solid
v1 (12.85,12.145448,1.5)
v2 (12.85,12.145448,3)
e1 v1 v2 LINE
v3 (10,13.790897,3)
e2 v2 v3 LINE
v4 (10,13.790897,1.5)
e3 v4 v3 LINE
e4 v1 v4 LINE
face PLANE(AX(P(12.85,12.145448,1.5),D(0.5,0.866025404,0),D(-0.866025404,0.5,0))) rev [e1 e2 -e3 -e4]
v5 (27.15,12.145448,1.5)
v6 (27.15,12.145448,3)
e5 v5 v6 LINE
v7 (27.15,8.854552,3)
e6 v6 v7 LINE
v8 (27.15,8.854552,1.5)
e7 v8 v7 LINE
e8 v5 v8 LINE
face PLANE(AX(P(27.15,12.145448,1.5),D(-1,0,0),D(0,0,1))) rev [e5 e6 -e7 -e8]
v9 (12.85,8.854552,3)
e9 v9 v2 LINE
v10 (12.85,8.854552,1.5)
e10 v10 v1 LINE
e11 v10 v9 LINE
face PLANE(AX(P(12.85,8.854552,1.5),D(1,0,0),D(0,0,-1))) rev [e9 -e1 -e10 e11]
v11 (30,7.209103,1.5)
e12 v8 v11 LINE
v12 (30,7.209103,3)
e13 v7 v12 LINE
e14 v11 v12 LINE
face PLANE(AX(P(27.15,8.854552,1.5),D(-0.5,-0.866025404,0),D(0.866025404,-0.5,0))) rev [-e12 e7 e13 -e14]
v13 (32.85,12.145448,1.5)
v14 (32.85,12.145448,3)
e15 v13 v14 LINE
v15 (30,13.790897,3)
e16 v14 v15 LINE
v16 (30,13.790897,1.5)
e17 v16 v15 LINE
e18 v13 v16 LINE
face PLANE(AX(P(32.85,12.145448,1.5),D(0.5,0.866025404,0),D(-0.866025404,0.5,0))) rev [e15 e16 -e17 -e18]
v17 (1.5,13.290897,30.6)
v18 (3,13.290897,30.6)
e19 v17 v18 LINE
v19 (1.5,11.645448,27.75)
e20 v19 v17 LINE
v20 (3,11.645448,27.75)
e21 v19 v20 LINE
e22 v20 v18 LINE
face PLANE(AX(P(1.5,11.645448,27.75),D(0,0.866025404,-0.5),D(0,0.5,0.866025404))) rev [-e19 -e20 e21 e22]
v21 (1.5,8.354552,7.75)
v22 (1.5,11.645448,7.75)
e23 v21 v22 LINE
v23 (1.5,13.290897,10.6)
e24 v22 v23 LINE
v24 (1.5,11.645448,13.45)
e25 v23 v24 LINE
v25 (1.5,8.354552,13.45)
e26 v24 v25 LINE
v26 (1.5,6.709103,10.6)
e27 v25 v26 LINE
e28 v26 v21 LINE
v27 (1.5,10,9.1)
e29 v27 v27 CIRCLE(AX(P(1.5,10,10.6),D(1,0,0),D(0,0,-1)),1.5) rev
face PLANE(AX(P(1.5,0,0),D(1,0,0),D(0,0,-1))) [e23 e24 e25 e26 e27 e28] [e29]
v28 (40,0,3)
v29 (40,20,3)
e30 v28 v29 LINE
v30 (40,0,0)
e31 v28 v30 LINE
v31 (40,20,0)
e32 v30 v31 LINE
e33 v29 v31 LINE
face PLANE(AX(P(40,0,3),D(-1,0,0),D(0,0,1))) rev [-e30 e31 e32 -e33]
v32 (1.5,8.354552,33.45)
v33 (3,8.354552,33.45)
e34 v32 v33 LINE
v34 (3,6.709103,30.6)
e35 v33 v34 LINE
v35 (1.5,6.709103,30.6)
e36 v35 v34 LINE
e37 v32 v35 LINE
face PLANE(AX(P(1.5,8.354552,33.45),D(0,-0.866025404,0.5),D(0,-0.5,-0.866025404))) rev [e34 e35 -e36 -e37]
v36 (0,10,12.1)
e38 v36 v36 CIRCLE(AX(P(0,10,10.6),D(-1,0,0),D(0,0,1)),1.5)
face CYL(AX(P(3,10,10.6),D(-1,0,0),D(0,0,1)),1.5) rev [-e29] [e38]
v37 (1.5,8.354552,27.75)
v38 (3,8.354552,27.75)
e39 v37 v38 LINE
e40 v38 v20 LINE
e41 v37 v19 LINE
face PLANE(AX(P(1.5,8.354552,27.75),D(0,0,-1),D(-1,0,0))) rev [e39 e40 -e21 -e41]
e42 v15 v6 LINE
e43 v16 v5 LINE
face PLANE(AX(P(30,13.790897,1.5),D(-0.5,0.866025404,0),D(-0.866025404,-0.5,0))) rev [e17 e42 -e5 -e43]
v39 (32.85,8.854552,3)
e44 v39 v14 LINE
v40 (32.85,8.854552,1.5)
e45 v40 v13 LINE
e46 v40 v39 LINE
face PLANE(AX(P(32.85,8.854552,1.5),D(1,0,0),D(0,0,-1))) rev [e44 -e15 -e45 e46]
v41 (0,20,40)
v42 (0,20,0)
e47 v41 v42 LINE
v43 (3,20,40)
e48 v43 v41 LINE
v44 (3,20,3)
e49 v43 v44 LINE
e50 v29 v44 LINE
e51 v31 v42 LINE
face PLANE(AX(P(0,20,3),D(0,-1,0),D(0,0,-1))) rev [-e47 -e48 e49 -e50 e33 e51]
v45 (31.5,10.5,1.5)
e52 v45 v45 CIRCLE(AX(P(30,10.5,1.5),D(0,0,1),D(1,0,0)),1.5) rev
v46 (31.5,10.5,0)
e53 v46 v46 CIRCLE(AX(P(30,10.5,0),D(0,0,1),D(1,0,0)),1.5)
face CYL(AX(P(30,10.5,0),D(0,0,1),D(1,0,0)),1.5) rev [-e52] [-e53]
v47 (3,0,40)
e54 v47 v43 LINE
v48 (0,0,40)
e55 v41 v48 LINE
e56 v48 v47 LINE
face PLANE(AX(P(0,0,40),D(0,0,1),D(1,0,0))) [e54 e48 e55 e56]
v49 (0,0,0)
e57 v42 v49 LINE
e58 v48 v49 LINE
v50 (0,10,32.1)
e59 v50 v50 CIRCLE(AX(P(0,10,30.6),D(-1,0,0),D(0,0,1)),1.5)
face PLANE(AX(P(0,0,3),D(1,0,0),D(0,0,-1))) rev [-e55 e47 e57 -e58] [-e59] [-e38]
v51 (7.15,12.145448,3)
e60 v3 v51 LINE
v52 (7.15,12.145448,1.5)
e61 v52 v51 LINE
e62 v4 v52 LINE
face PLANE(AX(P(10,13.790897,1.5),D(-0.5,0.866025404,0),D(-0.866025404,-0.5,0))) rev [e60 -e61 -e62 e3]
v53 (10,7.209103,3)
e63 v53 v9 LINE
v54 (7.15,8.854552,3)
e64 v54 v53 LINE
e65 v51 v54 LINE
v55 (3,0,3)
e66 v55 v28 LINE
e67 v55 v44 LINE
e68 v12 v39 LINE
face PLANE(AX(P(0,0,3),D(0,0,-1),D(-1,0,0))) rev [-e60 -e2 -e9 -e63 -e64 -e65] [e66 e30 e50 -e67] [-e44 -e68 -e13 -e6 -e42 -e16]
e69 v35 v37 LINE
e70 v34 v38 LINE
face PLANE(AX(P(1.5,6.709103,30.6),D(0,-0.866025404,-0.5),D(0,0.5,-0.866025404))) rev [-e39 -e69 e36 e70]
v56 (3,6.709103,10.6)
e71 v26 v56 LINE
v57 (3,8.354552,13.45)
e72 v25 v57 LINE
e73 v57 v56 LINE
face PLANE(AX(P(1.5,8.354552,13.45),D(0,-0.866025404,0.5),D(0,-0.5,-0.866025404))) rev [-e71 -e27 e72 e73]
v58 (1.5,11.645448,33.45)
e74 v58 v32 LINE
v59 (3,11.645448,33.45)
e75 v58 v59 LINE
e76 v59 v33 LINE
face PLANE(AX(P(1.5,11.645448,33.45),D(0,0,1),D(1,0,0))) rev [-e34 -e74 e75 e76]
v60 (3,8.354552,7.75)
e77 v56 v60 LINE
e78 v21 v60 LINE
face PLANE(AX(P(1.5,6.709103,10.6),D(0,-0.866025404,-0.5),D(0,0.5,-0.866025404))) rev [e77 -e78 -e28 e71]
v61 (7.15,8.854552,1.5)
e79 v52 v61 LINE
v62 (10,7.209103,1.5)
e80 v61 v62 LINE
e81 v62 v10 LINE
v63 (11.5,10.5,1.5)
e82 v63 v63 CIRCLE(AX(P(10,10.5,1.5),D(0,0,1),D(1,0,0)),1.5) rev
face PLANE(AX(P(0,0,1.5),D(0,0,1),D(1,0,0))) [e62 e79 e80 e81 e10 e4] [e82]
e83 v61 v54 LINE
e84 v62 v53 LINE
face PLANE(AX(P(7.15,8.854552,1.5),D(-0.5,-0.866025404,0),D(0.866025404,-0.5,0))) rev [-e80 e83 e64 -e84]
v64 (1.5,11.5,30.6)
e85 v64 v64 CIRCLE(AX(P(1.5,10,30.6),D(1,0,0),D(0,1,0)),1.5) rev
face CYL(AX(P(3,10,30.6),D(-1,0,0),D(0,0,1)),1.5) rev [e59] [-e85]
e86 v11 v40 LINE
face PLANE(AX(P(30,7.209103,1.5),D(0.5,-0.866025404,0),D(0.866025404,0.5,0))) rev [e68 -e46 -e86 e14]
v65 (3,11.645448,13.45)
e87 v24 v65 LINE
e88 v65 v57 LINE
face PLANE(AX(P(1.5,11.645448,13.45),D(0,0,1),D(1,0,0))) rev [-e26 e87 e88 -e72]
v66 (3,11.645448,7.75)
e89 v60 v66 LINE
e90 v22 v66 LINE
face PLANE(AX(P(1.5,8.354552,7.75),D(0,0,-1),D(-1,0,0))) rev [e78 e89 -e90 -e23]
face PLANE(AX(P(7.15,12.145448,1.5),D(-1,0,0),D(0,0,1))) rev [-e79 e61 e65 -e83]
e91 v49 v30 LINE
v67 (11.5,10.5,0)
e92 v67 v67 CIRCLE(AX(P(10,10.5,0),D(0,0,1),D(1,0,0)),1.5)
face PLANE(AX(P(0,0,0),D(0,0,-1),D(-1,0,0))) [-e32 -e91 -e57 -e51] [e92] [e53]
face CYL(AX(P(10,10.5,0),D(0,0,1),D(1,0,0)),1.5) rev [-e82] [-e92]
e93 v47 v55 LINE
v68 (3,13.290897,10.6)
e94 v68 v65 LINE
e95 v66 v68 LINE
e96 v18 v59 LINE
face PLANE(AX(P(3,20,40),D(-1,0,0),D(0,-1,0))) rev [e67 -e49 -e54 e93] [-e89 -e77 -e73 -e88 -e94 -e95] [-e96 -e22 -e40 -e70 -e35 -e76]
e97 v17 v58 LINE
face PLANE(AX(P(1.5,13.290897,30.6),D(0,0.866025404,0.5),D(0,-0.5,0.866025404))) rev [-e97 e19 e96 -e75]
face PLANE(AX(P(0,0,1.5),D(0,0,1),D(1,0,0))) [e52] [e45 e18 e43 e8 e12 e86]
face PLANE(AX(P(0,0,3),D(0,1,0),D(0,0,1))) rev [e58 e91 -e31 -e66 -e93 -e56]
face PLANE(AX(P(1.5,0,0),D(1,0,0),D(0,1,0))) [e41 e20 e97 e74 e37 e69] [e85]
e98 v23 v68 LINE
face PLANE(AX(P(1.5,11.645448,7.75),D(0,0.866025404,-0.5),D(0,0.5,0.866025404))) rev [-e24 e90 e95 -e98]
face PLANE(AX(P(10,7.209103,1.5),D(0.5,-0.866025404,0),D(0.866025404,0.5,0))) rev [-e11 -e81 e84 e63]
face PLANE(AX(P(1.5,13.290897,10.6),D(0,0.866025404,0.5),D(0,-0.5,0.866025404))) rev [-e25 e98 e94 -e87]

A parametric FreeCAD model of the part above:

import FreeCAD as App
import Part
import Sketcher
from FreeCAD import Vector
Q = App.Units.Quantity


def add_polygon(sketch, points):
    """Adds a closed chain of lines whose ends are joined by coincident constraints."""
    first, n = sketch.GeometryCount, len(points)
    for a, b in zip(points, points[1:] + points[:1]):
        sketch.addGeometry(Part.LineSegment(App.Vector(*a, 0), App.Vector(*b, 0)), False)
    for i in range(n):
        sketch.addConstraint(Sketcher.Constraint("Coincident", first + i, 2, first + (i + 1) % n, 1))

doc = App.newDocument("Part")
body = doc.addObject("PartDesign::Body", "Body")

# Sketch on XY plane
sketch1 = body.newObject("Sketcher::SketchObject", "Sketch")
sketch1.AttachmentSupport = (doc.getObject("XY_Plane"), [""])
sketch1.MapMode = "FlatFace"
add_polygon(sketch1, [(0, 20), (0, 0), (40, 0), (40, 20)])  # lines 0-3
sketch1.addConstraint([
    Sketcher.Constraint("Vertical", 0),
    Sketcher.Constraint("Horizontal", 1),
    Sketcher.Constraint("Vertical", 2),
    Sketcher.Constraint("Horizontal", 3),
    Sketcher.Constraint("Coincident", 0, 2, -1, 1),
    Sketcher.Constraint("DistanceX", 1, 1, 1, 2, 40.0),
    Sketcher.Constraint("DistanceY", 0, 2, 0, 1, 20.0),
])
pad1 = body.newObject("PartDesign::Pad", "Pad")
pad1.Profile = sketch1
pad1.Length = 3

# Sketch on XY plane
sketch2 = body.newObject("Sketcher::SketchObject", "Sketch001")
sketch2.AttachmentSupport = (doc.getObject("XY_Plane"), [""])
sketch2.MapMode = "FlatFace"
sketch2.AttachmentOffset = App.Placement(Vector(0, 0, 3), App.Rotation())
sketch2.addGeometry([
    Part.Circle(Vector(10, 10.5, 0), Vector(0, 0, 1), 1.5),
    Part.Circle(Vector(30, 10.5, 0), Vector(0, 0, 1), 1.5),
], False)
sketch2.addConstraint([
    Sketcher.Constraint("Equal", 0, 1),
    Sketcher.Constraint("Horizontal", 0, 3, 1, 3),
    Sketcher.Constraint("Diameter", 0, 3.0),
    Sketcher.Constraint("DistanceX", -1, 1, 0, 3, 10.0),
    Sketcher.Constraint("DistanceX", -1, 1, 1, 3, 30.0),
    Sketcher.Constraint("DistanceY", -1, 1, 0, 3, 10.5),
])
pocket1 = body.newObject("PartDesign::Pocket", "Pocket")
pocket1.Profile = sketch2
pocket1.Length = 3

# Sketch on XY plane
sketch3 = body.newObject("Sketcher::SketchObject", "Sketch002")
sketch3.AttachmentSupport = (doc.getObject("XY_Plane"), [""])
sketch3.MapMode = "FlatFace"
sketch3.AttachmentOffset = App.Placement(Vector(0, 0, 3), App.Rotation())
add_polygon(sketch3, [(0, 20), (0, 0), (3, 0), (3, 20)])  # lines 0-3
sketch3.addConstraint([
    Sketcher.Constraint("Vertical", 0),
    Sketcher.Constraint("Horizontal", 1),
    Sketcher.Constraint("Vertical", 2),
    Sketcher.Constraint("Horizontal", 3),
    Sketcher.Constraint("Coincident", 0, 2, -1, 1),
    Sketcher.Constraint("DistanceX", 1, 1, 1, 2, 3.0),
    Sketcher.Constraint("DistanceY", 0, 2, 0, 1, 20.0),
])
pad2 = body.newObject("PartDesign::Pad", "Pad001")
pad2.Profile = sketch3
pad2.Length = 37

# Sketch on YZ plane
sketch4 = body.newObject("Sketcher::SketchObject", "Sketch003")
sketch4.AttachmentSupport = (doc.getObject("YZ_Plane"), [""])
sketch4.MapMode = "FlatFace"
sketch4.addGeometry([
    Part.Circle(Vector(10, 10.6, 0), Vector(0, 0, 1), 1.5),
    Part.Circle(Vector(10, 30.6, 0), Vector(0, 0, 1), 1.5),
], False)
sketch4.addConstraint([
    Sketcher.Constraint("Equal", 0, 1),
    Sketcher.Constraint("Vertical", 0, 3, 1, 3),
    Sketcher.Constraint("Diameter", 0, 3.0),
    Sketcher.Constraint("DistanceX", -1, 1, 0, 3, 10.0),
    Sketcher.Constraint("DistanceY", 0, 3, 1, 3, 20.0),
    Sketcher.Constraint("DistanceY", -1, 1, 0, 3, 10.6),
])
pocket2 = body.newObject("PartDesign::Pocket", "Pocket001")
pocket2.Profile = sketch4
pocket2.Length = 3
pocket2.Reversed = True

# Sketch on YZ plane
sketch5 = body.newObject("Sketcher::SketchObject", "Sketch004")
sketch5.AttachmentSupport = (doc.getObject("YZ_Plane"), [""])
sketch5.MapMode = "FlatFace"
sketch5.AttachmentOffset = App.Placement(Vector(0, 0, 3), App.Rotation())
add_polygon(sketch5, [(8.4, 13.4), (6.7, 10.6), (8.4, 7.8), (11.6, 7.8), (13.3, 10.6), (11.6, 13.4)])  # lines 0-5
add_polygon(sketch5, [(6.7, 30.6), (8.4, 27.8), (11.6, 27.8), (13.3, 30.6), (11.6, 33.5), (8.4, 33.5)])  # lines 6-11
sketch5.addConstraint([
    Sketcher.Constraint("Horizontal", 2),
    Sketcher.Constraint("Horizontal", 5),
    Sketcher.Constraint("Horizontal", 7),
    Sketcher.Constraint("Horizontal", 10),
    Sketcher.Constraint("Parallel", 0, 3),
    Sketcher.Constraint("Parallel", 1, 4),
    Sketcher.Constraint("Parallel", 4, 6),
    Sketcher.Constraint("Parallel", 3, 8),
    Sketcher.Constraint("Parallel", 6, 9),
    Sketcher.Constraint("Parallel", 8, 11),
    Sketcher.Constraint("Horizontal", 0, 2, 3, 2),
    Sketcher.Constraint("Horizontal", 8, 2, 11, 2),
    Sketcher.Constraint("Vertical", 2, 2, 4, 2),
    Sketcher.Constraint("Vertical", 1, 2, 5, 2),
    Sketcher.Constraint("Vertical", 5, 2, 6, 2),
    Sketcher.Constraint("Vertical", 4, 2, 7, 2),
    Sketcher.Constraint("Vertical", 3, 2, 8, 2),
    Sketcher.Constraint("Vertical", 7, 2, 9, 2),
    Sketcher.Constraint("Angle", 0, Q("-120 deg")),
    Sketcher.Constraint("DistanceY", 1, 2, 6, 2, 20.0),
    Sketcher.Constraint("DistanceY", -1, 1, 0, 2, 10.6),
    Sketcher.Constraint("DistanceY", 2, 2, 4, 2, 5.7),
    Sketcher.Constraint("DistanceX", 2, 1, 2, 2, 3.290897),
    Sketcher.Constraint("DistanceX", -1, 1, 1, 2, 8.354552),
])
pocket3 = body.newObject("PartDesign::Pocket", "Pocket002")
pocket3.Profile = sketch5
pocket3.Length = 1.5

# Sketch on XY plane
sketch6 = body.newObject("Sketcher::SketchObject", "Sketch005")
sketch6.AttachmentSupport = (doc.getObject("XY_Plane"), [""])
sketch6.MapMode = "FlatFace"
sketch6.AttachmentOffset = App.Placement(Vector(0, 0, 3), App.Rotation())
add_polygon(sketch6, [(27.1, 8.9), (30, 7.2), (32.9, 8.9), (32.9, 12.1), (30, 13.8), (27.1, 12.1)])  # lines 0-5
add_polygon(sketch6, [(10, 7.2), (12.8, 8.9), (12.8, 12.1), (10, 13.8), (7.2, 12.1), (7.2, 8.9)])  # lines 6-11
sketch6.addConstraint([
    Sketcher.Constraint("Vertical", 2),
    Sketcher.Constraint("Vertical", 5),
    Sketcher.Constraint("Vertical", 7),
    Sketcher.Constraint("Vertical", 10),
    Sketcher.Constraint("Parallel", 0, 3),
    Sketcher.Constraint("Parallel", 1, 4),
    Sketcher.Constraint("Parallel", 4, 6),
    Sketcher.Constraint("Parallel", 3, 8),
    Sketcher.Constraint("Parallel", 6, 9),
    Sketcher.Constraint("Parallel", 8, 11),
    Sketcher.Constraint("Horizontal", 2, 2, 4, 2),
    Sketcher.Constraint("Horizontal", 1, 2, 5, 2),
    Sketcher.Constraint("Horizontal", 5, 2, 6, 2),
    Sketcher.Constraint("Horizontal", 4, 2, 7, 2),
    Sketcher.Constraint("Horizontal", 3, 2, 8, 2),
    Sketcher.Constraint("Horizontal", 7, 2, 9, 2),
    Sketcher.Constraint("Horizontal", 6, 2, 10, 2),
    Sketcher.Constraint("Vertical", 0, 2, 3, 2),
    Sketcher.Constraint("Angle", 0, Q("-30 deg")),
    Sketcher.Constraint("DistanceX", -1, 1, 0, 2, 30.0),
    Sketcher.Constraint("DistanceX", -1, 1, 8, 2, 10.0),
    Sketcher.Constraint("DistanceX", 4, 2, 2, 2, 5.7),
    Sketcher.Constraint("DistanceY", 2, 1, 2, 2, 3.290897),
    Sketcher.Constraint("DistanceY", -1, 1, 1, 2, 8.854552),
])
pocket4 = body.newObject("PartDesign::Pocket", "Pocket003")
pocket4.Profile = sketch6
pocket4.Length = 1.5

doc.recompute()
